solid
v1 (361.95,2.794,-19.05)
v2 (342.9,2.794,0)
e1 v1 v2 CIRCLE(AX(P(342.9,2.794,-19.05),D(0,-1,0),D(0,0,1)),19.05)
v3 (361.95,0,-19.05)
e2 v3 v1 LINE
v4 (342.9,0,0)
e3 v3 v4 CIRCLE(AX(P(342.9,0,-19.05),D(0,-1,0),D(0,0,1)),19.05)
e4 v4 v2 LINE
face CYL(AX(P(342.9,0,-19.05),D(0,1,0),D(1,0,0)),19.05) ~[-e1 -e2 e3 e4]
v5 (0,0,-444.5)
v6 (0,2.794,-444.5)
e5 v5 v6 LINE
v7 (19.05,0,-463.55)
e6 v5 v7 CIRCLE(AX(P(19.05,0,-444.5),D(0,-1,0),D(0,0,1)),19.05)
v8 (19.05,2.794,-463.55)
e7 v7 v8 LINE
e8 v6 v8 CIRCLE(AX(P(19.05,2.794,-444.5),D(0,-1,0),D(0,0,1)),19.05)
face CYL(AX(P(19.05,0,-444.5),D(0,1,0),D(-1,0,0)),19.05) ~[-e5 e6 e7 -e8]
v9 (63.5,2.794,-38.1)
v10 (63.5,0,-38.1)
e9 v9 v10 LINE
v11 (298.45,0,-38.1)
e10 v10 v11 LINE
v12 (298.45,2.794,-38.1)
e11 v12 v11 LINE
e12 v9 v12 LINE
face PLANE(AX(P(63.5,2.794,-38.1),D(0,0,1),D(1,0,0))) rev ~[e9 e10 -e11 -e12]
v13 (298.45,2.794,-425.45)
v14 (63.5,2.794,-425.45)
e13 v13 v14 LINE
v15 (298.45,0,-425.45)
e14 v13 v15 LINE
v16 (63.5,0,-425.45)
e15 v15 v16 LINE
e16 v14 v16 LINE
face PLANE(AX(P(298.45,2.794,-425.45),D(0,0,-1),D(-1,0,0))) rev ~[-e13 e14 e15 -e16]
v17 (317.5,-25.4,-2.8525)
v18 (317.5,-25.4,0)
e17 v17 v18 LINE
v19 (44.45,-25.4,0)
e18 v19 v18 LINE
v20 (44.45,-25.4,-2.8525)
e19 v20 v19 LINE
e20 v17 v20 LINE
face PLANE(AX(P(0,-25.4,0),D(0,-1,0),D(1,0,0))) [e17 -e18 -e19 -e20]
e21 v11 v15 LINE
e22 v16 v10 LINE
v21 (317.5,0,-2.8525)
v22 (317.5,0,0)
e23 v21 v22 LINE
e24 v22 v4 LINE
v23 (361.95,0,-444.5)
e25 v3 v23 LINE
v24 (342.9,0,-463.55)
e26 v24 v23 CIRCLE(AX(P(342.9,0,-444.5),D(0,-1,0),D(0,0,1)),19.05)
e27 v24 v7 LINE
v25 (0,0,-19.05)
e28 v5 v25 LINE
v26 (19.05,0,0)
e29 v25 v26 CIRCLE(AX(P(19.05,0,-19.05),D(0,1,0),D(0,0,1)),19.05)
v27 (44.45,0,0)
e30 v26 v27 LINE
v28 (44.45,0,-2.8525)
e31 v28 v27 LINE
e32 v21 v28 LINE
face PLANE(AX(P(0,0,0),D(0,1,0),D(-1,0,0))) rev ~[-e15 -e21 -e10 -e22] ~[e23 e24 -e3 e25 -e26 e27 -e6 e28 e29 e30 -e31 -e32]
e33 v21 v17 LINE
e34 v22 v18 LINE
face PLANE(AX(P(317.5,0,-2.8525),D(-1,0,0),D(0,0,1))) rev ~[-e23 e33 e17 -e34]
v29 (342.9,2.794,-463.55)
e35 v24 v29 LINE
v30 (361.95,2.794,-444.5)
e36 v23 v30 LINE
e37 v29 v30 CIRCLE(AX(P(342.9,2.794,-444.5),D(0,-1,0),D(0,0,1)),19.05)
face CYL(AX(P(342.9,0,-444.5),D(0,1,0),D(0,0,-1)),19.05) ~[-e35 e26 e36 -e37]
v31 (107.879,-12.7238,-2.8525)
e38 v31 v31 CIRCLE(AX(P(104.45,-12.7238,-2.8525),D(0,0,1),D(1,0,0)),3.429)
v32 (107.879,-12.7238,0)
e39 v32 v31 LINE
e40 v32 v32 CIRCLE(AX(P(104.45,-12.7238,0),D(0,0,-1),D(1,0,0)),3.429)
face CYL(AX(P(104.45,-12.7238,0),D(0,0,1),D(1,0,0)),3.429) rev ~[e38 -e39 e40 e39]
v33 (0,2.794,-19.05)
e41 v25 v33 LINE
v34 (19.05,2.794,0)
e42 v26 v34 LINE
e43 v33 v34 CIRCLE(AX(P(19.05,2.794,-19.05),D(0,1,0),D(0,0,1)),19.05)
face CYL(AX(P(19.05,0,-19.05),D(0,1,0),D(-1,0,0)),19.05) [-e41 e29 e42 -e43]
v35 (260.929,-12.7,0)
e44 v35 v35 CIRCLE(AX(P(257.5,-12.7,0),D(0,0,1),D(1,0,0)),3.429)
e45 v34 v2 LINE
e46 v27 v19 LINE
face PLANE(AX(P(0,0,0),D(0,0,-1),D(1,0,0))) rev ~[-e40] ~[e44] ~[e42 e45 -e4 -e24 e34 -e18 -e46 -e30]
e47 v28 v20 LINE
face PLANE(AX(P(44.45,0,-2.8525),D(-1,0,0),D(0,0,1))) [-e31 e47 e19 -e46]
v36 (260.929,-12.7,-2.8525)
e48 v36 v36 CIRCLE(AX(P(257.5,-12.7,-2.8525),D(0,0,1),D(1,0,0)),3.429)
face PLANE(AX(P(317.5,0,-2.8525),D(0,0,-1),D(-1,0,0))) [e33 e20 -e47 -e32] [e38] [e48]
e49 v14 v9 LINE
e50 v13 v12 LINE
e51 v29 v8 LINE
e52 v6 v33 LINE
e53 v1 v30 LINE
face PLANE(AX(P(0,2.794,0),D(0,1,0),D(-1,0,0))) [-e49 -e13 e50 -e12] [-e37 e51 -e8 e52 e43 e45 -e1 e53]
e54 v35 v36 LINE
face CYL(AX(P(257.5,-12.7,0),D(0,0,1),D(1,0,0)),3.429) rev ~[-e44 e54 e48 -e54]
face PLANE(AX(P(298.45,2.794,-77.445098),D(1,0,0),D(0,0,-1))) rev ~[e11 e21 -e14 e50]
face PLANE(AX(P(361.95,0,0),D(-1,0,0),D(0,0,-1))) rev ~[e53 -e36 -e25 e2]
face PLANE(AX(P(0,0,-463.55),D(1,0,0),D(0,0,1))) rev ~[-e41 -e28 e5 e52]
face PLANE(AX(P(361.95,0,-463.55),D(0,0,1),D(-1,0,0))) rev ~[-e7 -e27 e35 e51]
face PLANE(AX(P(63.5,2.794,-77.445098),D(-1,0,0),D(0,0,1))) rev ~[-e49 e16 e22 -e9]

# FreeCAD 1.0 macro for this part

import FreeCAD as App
import Part
import Sketcher

V = App.Vector
Q = App.Units.Quantity


def edges_at(feature, points):
    """Names of the edges that pass closest to the given points."""
    edges = feature.Shape.Edges
    near = lambda p: min(range(len(edges)), key=lambda i: edges[i].distToShape(Part.Vertex(*p))[0])
    return sorted({f"Edge{near(p) + 1}" for p in points})

doc = App.newDocument("Part")
params = doc.addObject("Spreadsheet::Sheet", "Params")
for row, (alias, value) in enumerate([
    ("sketch1_width", "14.25 in"),
    ("sketch1_height", "18.25 in"),
    ("pad1_length", "0.11 in"),
    ("fillet_radius", "0.75 in"),
    ("sketch2_width", "10.75 in"),
    ("pad2_length", "1 in"),
    ("sketch3_diameter", "0.27 in"),
    ("pocket1_length", "1 in"),
    ("sketch4_width", "9.25 in"),
    ("sketch4_height", "15.25 in"),
    ("pocket2_length", "1 in"),
], start=1):
    params.set(f"A{row}", alias)
    params.set(f"B{row}", "=" + value)
    params.setAlias(f"B{row}", alias)

body = doc.addObject("PartDesign::Body", "Body")

sketch1 = body.newObject("Sketcher::SketchObject", "Sketch")
sketch1.AttachmentSupport = (doc.getObject("XZ_Plane"), [""])
sketch1.MapMode = "FlatFace"
sketch1.addGeometry(Part.LineSegment(V(0, -463.55, 0), V(0, 0, 0)), False)
sketch1.addGeometry(Part.LineSegment(V(0, 0, 0), V(361.95, 0, 0)), False)
sketch1.addGeometry(Part.LineSegment(V(361.95, 0, 0), V(361.95, -463.55, 0)), False)
sketch1.addGeometry(Part.LineSegment(V(361.95, -463.55, 0), V(0, -463.55, 0)), False)
sketch1.addConstraint(Sketcher.Constraint("Coincident", 0, 2, 1, 1))
sketch1.addConstraint(Sketcher.Constraint("Coincident", 1, 2, 2, 1))
sketch1.addConstraint(Sketcher.Constraint("Coincident", 2, 2, 3, 1))
sketch1.addConstraint(Sketcher.Constraint("Coincident", 3, 2, 0, 1))
sketch1.addConstraint(Sketcher.Constraint("Vertical", 0))
sketch1.addConstraint(Sketcher.Constraint("Horizontal", 1))
sketch1.addConstraint(Sketcher.Constraint("Vertical", 2))
sketch1.addConstraint(Sketcher.Constraint("Horizontal", 3))
sketch1.addConstraint(Sketcher.Constraint("Coincident", 0, 2, -1, 1))
sketch1.addConstraint(Sketcher.Constraint("DistanceX", 1, 1, 1, 2, Q("14.25 in")))
sketch1.addConstraint(Sketcher.Constraint("DistanceY", 0, 1, 0, 2, Q("18.25 in")))
sketch1.setExpression("Constraints[9]", "Params.sketch1_width")
sketch1.setExpression("Constraints[10]", "Params.sketch1_height")
pad1 = body.newObject("PartDesign::Pad", "Pad")
pad1.Profile = sketch1
pad1.setExpression("Length", "Params.pad1_length")
pad1.Reversed = True
doc.recompute()

fillet = body.newObject("PartDesign::Fillet", "Fillet")
fillet.Base = (pad1, edges_at(pad1, [
    (361.95, 1.397, 0),
    (361.95, 1.397, -463.55),
    (0, 1.397, -463.55),
    (0, 1.397, 0),
]))
fillet.setExpression("Radius", "Params.fillet_radius")

sketch2 = body.newObject("Sketcher::SketchObject", "Sketch001")
sketch2.AttachmentSupport = (doc.getObject("XZ_Plane"), [""])
sketch2.MapMode = "FlatFace"
sketch2.addGeometry(Part.LineSegment(V(317.5, 0, 0), V(44.45, 0, 0)), False)
sketch2.addGeometry(Part.LineSegment(V(44.45, 0, 0), V(44.45, -2.8525, 0)), False)
sketch2.addGeometry(Part.LineSegment(V(44.45, -2.8525, 0), V(317.5, -2.8525, 0)), False)
sketch2.addGeometry(Part.LineSegment(V(317.5, -2.8525, 0), V(317.5, 0, 0)), False)
sketch2.addConstraint(Sketcher.Constraint("Coincident", 0, 2, 1, 1))
sketch2.addConstraint(Sketcher.Constraint("Coincident", 1, 2, 2, 1))
sketch2.addConstraint(Sketcher.Constraint("Coincident", 2, 2, 3, 1))
sketch2.addConstraint(Sketcher.Constraint("Coincident", 3, 2, 0, 1))
sketch2.addConstraint(Sketcher.Constraint("Horizontal", 0))
sketch2.addConstraint(Sketcher.Constraint("Vertical", 1))
sketch2.addConstraint(Sketcher.Constraint("Horizontal", 2))
sketch2.addConstraint(Sketcher.Constraint("Vertical", 3))
sketch2.addConstraint(Sketcher.Constraint("PointOnObject", 0, 2, -1))
sketch2.addConstraint(Sketcher.Constraint("DistanceX", 0, 2, 0, 1, Q("10.75 in")))
sketch2.addConstraint(Sketcher.Constraint("DistanceX", -1, 1, 2, 2, Q("12.5 in")))
sketch2.addConstraint(Sketcher.Constraint("DistanceY", 1, 2, 1, 1, Q("0.1123 in")))
sketch2.setExpression("Constraints[9]", "Params.sketch2_width")
pad2 = body.newObject("PartDesign::Pad", "Pad001")
pad2.Profile = sketch2
pad2.setExpression("Length", "Params.pad2_length")

sketch3 = body.newObject("Sketcher::SketchObject", "Sketch002")
sketch3.AttachmentSupport = (doc.getObject("XY_Plane"), [""])
sketch3.MapMode = "FlatFace"
sketch3.addGeometry(Part.Circle(V(104.45, -12.7238, 0), V(0, 0, 1), 3.429), False)
sketch3.addGeometry(Part.Circle(V(257.5, -12.7, 0), V(0, 0, 1), 3.429), False)
sketch3.addConstraint(Sketcher.Constraint("Equal", 0, 1))
sketch3.addConstraint(Sketcher.Constraint("Diameter", 0, Q("0.27 in")))
sketch3.addConstraint(Sketcher.Constraint("DistanceY", 1, 3, -1, 1, Q("0.5 in")))
sketch3.addConstraint(Sketcher.Constraint("DistanceX", -1, 1, 0, 3, Q("4.1122 in")))
sketch3.addConstraint(Sketcher.Constraint("DistanceX", -1, 1, 1, 3, Q("10.1378 in")))
sketch3.addConstraint(Sketcher.Constraint("DistanceY", 0, 3, -1, 1, 12.7238))
sketch3.setExpression("Constraints[1]", "Params.sketch3_diameter")
pocket1 = body.newObject("PartDesign::Pocket", "Pocket")
pocket1.Profile = sketch3
pocket1.setExpression("Length", "Params.pocket1_length")

sketch4 = body.newObject("Sketcher::SketchObject", "Sketch003")
sketch4.AttachmentSupport = (doc.getObject("XZ_Plane"), [""])
sketch4.MapMode = "FlatFace"
sketch4.AttachmentOffset = App.Placement(V(0, 0, -0.11 * 25.4), App.Rotation())
sketch4.addGeometry(Part.LineSegment(V(298.45, -425.45, 0), V(63.5, -425.45, 0)), False)
sketch4.addGeometry(Part.LineSegment(V(63.5, -425.45, 0), V(63.5, -38.1, 0)), False)
sketch4.addGeometry(Part.LineSegment(V(63.5, -38.1, 0), V(298.45, -38.1, 0)), False)
sketch4.addGeometry(Part.LineSegment(V(298.45, -38.1, 0), V(298.45, -425.45, 0)), False)
sketch4.addConstraint(Sketcher.Constraint("Coincident", 0, 2, 1, 1))
sketch4.addConstraint(Sketcher.Constraint("Coincident", 1, 2, 2, 1))
sketch4.addConstraint(Sketcher.Constraint("Coincident", 2, 2, 3, 1))
sketch4.addConstraint(Sketcher.Constraint("Coincident", 3, 2, 0, 1))
sketch4.addConstraint(Sketcher.Constraint("Horizontal", 0))
sketch4.addConstraint(Sketcher.Constraint("Vertical", 1))
sketch4.addConstraint(Sketcher.Constraint("Horizontal", 2))
sketch4.addConstraint(Sketcher.Constraint("Vertical", 3))
sketch4.addConstraint(Sketcher.Constraint("DistanceX", 0, 2, 0, 1, Q("9.25 in")))
sketch4.addConstraint(Sketcher.Constraint("DistanceY", 1, 1, 1, 2, Q("15.25 in")))
sketch4.addConstraint(Sketcher.Constraint("DistanceX", -1, 1, 0, 2, Q("2.5 in")))
sketch4.addConstraint(Sketcher.Constraint("DistanceY", 1, 2, -1, 1, Q("1.5 in")))
sketch4.setExpression("Constraints[8]", "Params.sketch4_width")
sketch4.setExpression("Constraints[9]", "Params.sketch4_height")
pocket2 = body.newObject("PartDesign::Pocket", "Pocket001")
pocket2.Profile = sketch4
pocket2.setExpression("Length", "Params.pocket2_length")
pocket2.Reversed = True

doc.recompute()
